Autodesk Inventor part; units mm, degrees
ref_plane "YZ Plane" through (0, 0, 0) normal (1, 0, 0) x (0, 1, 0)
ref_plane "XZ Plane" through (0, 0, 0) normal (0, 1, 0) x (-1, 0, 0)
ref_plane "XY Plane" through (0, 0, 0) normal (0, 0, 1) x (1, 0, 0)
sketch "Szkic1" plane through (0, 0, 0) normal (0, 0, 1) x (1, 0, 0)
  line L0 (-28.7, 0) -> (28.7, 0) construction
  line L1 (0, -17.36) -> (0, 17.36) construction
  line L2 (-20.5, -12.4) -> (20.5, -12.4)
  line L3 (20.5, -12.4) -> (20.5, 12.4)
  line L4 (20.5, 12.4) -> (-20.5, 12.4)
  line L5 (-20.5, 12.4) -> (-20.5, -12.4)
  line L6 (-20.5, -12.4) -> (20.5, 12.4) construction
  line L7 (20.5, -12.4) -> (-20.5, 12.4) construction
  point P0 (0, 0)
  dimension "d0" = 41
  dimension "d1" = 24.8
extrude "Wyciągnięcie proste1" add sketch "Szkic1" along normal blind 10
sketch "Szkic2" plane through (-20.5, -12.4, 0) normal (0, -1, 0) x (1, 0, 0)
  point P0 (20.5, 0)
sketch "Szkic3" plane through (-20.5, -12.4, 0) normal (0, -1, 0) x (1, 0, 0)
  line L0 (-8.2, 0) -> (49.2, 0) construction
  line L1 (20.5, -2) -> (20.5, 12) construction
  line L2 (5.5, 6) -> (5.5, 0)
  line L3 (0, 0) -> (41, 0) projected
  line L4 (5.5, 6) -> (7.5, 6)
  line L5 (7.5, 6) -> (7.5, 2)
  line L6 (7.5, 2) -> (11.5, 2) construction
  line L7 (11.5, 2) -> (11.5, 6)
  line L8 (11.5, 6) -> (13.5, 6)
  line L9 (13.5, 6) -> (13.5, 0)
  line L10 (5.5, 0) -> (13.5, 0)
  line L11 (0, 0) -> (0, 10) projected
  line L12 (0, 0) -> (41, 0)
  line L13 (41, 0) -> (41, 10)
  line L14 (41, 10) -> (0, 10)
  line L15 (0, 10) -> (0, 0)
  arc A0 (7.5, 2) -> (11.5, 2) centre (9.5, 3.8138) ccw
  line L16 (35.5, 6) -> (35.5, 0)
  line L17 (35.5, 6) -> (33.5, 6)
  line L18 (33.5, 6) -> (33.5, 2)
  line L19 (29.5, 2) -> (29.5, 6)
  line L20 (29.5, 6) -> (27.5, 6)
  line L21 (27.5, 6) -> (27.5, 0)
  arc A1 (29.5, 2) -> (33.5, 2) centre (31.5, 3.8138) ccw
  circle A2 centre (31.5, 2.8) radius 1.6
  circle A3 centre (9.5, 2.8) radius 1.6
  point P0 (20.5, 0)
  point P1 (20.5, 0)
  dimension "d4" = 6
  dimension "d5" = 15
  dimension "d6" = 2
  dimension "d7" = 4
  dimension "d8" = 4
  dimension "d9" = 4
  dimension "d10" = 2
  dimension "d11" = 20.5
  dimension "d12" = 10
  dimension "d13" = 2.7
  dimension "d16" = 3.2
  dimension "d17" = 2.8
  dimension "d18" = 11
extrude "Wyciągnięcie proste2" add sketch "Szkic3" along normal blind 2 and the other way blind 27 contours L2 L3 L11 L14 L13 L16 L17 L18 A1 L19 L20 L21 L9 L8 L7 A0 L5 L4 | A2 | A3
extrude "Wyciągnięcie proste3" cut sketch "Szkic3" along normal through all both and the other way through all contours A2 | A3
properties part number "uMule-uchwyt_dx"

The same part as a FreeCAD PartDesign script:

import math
import FreeCAD as App
import Part
import Sketcher
Q = App.Units.Quantity


def add_polygon(sketch, points):
    """Adds a closed chain of lines whose ends are joined by coincident constraints."""
    first, n = sketch.GeometryCount, len(points)
    for a, b in zip(points, points[1:] + points[:1]):
        sketch.addGeometry(Part.LineSegment(App.Vector(*a, 0), App.Vector(*b, 0)), False)
    for i in range(n):
        sketch.addConstraint(Sketcher.Constraint("Coincident", first + i, 2, first + (i + 1) % n, 1))

doc = App.newDocument("Part")
body = doc.addObject("PartDesign::Body", "Body")

# Sketch on XY plane
sketch1 = body.newObject("Sketcher::SketchObject", "Sketch")
sketch1.AttachmentSupport = (doc.getObject("XY_Plane"), [""])
sketch1.MapMode = "FlatFace"
add_polygon(sketch1, [(-20, 12), (-20, -12), (20, -12), (20, 12)])  # lines 0-3
sketch1.addConstraint([
    Sketcher.Constraint("Vertical", 0),
    Sketcher.Constraint("Horizontal", 1),
    Sketcher.Constraint("Vertical", 2),
    Sketcher.Constraint("Horizontal", 3),
    Sketcher.Constraint("Symmetric", 0, 2, 2, 2, -1, 1),
    Sketcher.Constraint("DistanceX", 1, 1, 1, 2, Q("41 mm")),
    Sketcher.Constraint("DistanceY", 0, 2, 0, 1, Q("24.8 mm")),
])
pad1 = body.newObject("PartDesign::Pad", "Pad")
pad1.Profile = sketch1
pad1.Length = 10

# Sketch on XZ plane
sketch2 = body.newObject("Sketcher::SketchObject", "Sketch001")
sketch2.AttachmentSupport = (doc.getObject("XZ_Plane"), [""])
sketch2.MapMode = "FlatFace"
sketch2.AttachmentOffset = App.Placement(App.Vector(0, 0, 12.4), App.Rotation())
sketch2.addGeometry([
    Part.LineSegment(App.Vector(-15, 0, 0), App.Vector(-15, 6, 0)),  # 0
    Part.LineSegment(App.Vector(-15, 6, 0), App.Vector(-13, 6, 0)),  # 1
    Part.LineSegment(App.Vector(-13, 6, 0), App.Vector(-13, 2, 0)),  # 2
    Part.ArcOfCircle(Part.Circle(App.Vector(-11, 3.8, 0), App.Vector(0, 0, 1), 2.7), math.radians(-138), math.radians(-42)),  # 3
    Part.LineSegment(App.Vector(-9, 2, 0), App.Vector(-9, 6, 0)),  # 4
    Part.LineSegment(App.Vector(-9, 6, 0), App.Vector(-7, 6, 0)),  # 5
    Part.LineSegment(App.Vector(-7, 6, 0), App.Vector(-7, 0, 0)),  # 6
    Part.LineSegment(App.Vector(-7, 0, 0), App.Vector(7, 0, 0)),  # 7
    Part.LineSegment(App.Vector(7, 0, 0), App.Vector(7, 6, 0)),  # 8
    Part.LineSegment(App.Vector(7, 6, 0), App.Vector(9, 6, 0)),  # 9
    Part.LineSegment(App.Vector(9, 6, 0), App.Vector(9, 2, 0)),  # 10
    Part.ArcOfCircle(Part.Circle(App.Vector(11, 3.8, 0), App.Vector(0, 0, 1), 2.7), math.radians(-138), math.radians(-42)),  # 11
    Part.LineSegment(App.Vector(13, 2, 0), App.Vector(13, 6, 0)),  # 12
    Part.LineSegment(App.Vector(13, 6, 0), App.Vector(15, 6, 0)),  # 13
    Part.LineSegment(App.Vector(15, 6, 0), App.Vector(15, 0, 0)),  # 14
    Part.LineSegment(App.Vector(15, 0, 0), App.Vector(20.5, 0, 0)),  # 15
    Part.LineSegment(App.Vector(20.5, 0, 0), App.Vector(20.5, 10, 0)),  # 16
    Part.LineSegment(App.Vector(20.5, 10, 0), App.Vector(-20.5, 10, 0)),  # 17
    Part.LineSegment(App.Vector(-20.5, 10, 0), App.Vector(-20.5, 0, 0)),  # 18
    Part.LineSegment(App.Vector(-20.5, 0, 0), App.Vector(-15, 0, 0)),  # 19
], False)
sketch2.addConstraint([
    Sketcher.Constraint("Coincident", 0, 2, 1, 1),
    Sketcher.Constraint("Coincident", 1, 2, 2, 1),
    Sketcher.Constraint("Coincident", 2, 2, 3, 1),
    Sketcher.Constraint("Coincident", 3, 2, 4, 1),
    Sketcher.Constraint("Coincident", 4, 2, 5, 1),
    Sketcher.Constraint("Coincident", 5, 2, 6, 1),
    Sketcher.Constraint("Coincident", 6, 2, 7, 1),
    Sketcher.Constraint("Coincident", 7, 2, 8, 1),
    Sketcher.Constraint("Coincident", 8, 2, 9, 1),
    Sketcher.Constraint("Coincident", 9, 2, 10, 1),
    Sketcher.Constraint("Coincident", 10, 2, 11, 1),
    Sketcher.Constraint("Coincident", 11, 2, 12, 1),
    Sketcher.Constraint("Coincident", 12, 2, 13, 1),
    Sketcher.Constraint("Coincident", 13, 2, 14, 1),
    Sketcher.Constraint("Coincident", 14, 2, 15, 1),
    Sketcher.Constraint("Coincident", 15, 2, 16, 1),
    Sketcher.Constraint("Coincident", 16, 2, 17, 1),
    Sketcher.Constraint("Coincident", 17, 2, 18, 1),
    Sketcher.Constraint("Coincident", 18, 2, 19, 1),
    Sketcher.Constraint("Coincident", 19, 2, 0, 1),
    Sketcher.Constraint("Vertical", 0),
    Sketcher.Constraint("Horizontal", 1),
    Sketcher.Constraint("Vertical", 2),
    Sketcher.Constraint("Vertical", 4),
    Sketcher.Constraint("Horizontal", 5),
    Sketcher.Constraint("Vertical", 6),
    Sketcher.Constraint("Horizontal", 7),
    Sketcher.Constraint("Vertical", 8),
    Sketcher.Constraint("Horizontal", 9),
    Sketcher.Constraint("Vertical", 10),
    Sketcher.Constraint("Vertical", 12),
    Sketcher.Constraint("Horizontal", 13),
    Sketcher.Constraint("Vertical", 14),
    Sketcher.Constraint("Horizontal", 15),
    Sketcher.Constraint("Vertical", 16),
    Sketcher.Constraint("Horizontal", 17),
    Sketcher.Constraint("Vertical", 18),
    Sketcher.Constraint("Horizontal", 19),
    Sketcher.Constraint("Equal", 3, 11),
    Sketcher.Constraint("Symmetric", 6, 2, 7, 2, -1, 1),
    Sketcher.Constraint("Symmetric", 15, 2, 18, 2, -1, 1),
    Sketcher.Constraint("Symmetric", 3, 3, 11, 3, -2),
    Sketcher.Constraint("Symmetric", 4, 2, 9, 2, -2),
    Sketcher.Constraint("Symmetric", 1, 2, 12, 2, -2),
    Sketcher.Constraint("Symmetric", 14, 2, 19, 2, -2),
    Sketcher.Constraint("Horizontal", 2, 2, 3, 2),
    Sketcher.Constraint("Horizontal", 1, 2, 4, 2),
    Sketcher.Constraint("Equal", 1, 5),
    Sketcher.Constraint("Radius", 3, Q("2.7 mm")),
    Sketcher.Constraint("DistanceX", 1, 1, 1, 2, Q("2 mm")),
    Sketcher.Constraint("DistanceY", 0, 1, 0, 2, Q("6 mm")),
    Sketcher.Constraint("DistanceY", 2, 2, 2, 1, Q("4 mm")),
    Sketcher.Constraint("DistanceY", 16, 1, 16, 2, Q("10 mm")),
    Sketcher.Constraint("DistanceX", 3, 3, -1, 1, Q("11 mm")),
    Sketcher.Constraint("DistanceX", 0, 2, -1, 1, Q("15 mm")),
    Sketcher.Constraint("DistanceX", -1, 1, 15, 2, Q("20.5 mm")),
])
pad2 = body.newObject("PartDesign::Pad", "Pad001")
pad2.Profile = sketch2
pad2.Type = "TwoLengths"
pad2.Length = 2
pad2.Length2 = 27

# Sketch on XZ plane
sketch3 = body.newObject("Sketcher::SketchObject", "Sketch002")
sketch3.AttachmentSupport = (doc.getObject("XZ_Plane"), [""])
sketch3.MapMode = "FlatFace"
sketch3.AttachmentOffset = App.Placement(App.Vector(0, 0, 12.4), App.Rotation())
sketch3.addGeometry([
    Part.Circle(App.Vector(11, 2.8, 0), App.Vector(0, 0, 1), 1.6),
    Part.Circle(App.Vector(-11, 2.8, 0), App.Vector(0, 0, 1), 1.6),
], False)
sketch3.addConstraint([
    Sketcher.Constraint("Equal", 0, 1),
    Sketcher.Constraint("Symmetric", 0, 3, 1, 3, -2),
    Sketcher.Constraint("Diameter", 0, Q("3.2 mm")),
    Sketcher.Constraint("DistanceX", -1, 1, 0, 3, Q("11 mm")),
    Sketcher.Constraint("DistanceY", -1, 1, 0, 3, Q("2.8 mm")),
])
pocket1 = body.newObject("PartDesign::Pocket", "Pocket")
pocket1.Profile = sketch3
pocket1.Type = "ThroughAll"
pocket1.Midplane = True

doc.recompute()
